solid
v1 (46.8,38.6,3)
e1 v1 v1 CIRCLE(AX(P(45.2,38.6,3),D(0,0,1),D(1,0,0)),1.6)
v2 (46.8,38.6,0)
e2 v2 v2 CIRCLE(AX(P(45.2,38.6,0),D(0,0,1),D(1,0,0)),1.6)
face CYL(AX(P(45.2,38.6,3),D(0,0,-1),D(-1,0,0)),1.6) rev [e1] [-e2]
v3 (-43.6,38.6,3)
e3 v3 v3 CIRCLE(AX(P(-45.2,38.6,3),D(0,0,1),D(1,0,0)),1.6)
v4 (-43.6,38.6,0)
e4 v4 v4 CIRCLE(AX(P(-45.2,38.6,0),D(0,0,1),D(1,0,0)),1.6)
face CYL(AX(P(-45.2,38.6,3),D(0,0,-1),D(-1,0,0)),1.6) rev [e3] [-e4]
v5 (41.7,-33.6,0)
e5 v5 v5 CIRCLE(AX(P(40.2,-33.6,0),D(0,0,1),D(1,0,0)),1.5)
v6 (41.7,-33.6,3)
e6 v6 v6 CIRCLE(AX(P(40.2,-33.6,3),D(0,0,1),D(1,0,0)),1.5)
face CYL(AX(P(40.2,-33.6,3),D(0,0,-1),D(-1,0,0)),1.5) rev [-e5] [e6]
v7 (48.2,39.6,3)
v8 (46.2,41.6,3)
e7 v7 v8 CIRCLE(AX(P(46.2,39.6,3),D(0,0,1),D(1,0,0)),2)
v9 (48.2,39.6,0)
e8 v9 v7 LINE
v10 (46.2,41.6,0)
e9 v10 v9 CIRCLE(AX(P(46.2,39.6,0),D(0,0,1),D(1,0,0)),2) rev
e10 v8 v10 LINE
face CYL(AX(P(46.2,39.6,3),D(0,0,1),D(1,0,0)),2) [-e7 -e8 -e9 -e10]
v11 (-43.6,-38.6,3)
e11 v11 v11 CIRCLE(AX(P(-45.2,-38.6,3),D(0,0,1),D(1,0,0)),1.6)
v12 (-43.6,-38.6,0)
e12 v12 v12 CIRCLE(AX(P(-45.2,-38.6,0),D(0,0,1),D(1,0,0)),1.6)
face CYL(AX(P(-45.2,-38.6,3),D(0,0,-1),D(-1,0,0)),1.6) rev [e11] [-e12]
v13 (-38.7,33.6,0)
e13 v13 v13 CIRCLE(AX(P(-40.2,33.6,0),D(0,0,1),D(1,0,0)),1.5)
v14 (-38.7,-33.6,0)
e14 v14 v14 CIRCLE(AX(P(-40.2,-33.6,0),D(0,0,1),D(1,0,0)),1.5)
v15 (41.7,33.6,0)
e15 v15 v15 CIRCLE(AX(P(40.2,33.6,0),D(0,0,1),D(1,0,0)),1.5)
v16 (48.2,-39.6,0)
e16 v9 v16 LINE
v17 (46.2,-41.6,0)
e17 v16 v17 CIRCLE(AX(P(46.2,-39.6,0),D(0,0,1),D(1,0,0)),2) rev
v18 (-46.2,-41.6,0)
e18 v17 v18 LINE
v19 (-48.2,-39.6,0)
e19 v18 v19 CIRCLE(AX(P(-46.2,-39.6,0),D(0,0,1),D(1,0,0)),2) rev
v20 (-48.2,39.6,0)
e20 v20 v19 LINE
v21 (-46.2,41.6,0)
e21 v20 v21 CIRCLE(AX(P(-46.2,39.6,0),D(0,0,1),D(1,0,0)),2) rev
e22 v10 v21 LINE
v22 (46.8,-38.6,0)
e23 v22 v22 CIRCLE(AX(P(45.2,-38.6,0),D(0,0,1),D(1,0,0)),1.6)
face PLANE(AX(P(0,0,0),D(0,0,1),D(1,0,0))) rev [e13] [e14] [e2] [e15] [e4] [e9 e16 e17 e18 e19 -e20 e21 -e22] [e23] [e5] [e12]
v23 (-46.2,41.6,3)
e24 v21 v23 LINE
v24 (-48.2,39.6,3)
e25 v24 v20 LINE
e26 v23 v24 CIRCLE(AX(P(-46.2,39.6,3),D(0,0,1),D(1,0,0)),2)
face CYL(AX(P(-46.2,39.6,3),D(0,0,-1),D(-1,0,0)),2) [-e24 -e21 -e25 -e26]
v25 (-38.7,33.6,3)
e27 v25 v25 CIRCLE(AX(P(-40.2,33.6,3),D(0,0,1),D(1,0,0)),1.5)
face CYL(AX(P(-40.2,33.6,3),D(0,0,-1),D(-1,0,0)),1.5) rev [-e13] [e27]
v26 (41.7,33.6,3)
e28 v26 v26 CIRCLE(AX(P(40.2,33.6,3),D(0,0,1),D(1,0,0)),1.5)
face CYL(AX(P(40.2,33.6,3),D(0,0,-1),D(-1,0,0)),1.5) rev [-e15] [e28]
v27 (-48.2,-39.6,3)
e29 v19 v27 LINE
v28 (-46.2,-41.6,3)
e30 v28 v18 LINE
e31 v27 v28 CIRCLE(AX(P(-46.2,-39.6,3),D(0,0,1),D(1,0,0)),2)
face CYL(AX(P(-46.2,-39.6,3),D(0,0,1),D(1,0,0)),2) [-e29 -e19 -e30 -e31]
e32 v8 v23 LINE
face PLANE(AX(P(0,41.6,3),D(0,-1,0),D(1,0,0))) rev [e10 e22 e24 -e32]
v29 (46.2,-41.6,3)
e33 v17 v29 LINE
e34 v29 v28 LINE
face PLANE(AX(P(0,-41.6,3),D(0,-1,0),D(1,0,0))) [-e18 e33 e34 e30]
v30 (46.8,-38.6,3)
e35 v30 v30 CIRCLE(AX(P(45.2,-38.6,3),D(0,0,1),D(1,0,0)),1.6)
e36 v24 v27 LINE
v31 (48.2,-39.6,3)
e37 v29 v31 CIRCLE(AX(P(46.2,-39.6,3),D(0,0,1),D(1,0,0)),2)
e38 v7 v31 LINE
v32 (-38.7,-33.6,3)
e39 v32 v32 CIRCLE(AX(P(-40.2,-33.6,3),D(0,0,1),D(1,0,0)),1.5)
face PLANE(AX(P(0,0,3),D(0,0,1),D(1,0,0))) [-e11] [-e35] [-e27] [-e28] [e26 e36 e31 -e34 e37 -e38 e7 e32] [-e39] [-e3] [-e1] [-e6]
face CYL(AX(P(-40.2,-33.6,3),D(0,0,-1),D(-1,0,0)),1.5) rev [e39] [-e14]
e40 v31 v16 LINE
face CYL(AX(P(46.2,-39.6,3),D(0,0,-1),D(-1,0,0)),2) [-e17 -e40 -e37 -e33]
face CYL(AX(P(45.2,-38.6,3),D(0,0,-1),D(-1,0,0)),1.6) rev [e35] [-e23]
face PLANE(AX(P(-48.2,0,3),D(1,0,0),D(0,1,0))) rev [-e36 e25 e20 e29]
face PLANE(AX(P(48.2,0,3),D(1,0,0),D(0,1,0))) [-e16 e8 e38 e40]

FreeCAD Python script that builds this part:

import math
import FreeCAD as App
import Part
import Sketcher

V = App.Vector
Q = App.Units.Quantity


def edges_at(feature, points):
    """Names of the edges that pass closest to the given points."""
    edges = feature.Shape.Edges
    near = lambda p: min(range(len(edges)), key=lambda i: edges[i].distToShape(Part.Vertex(*p))[0])
    return sorted({f"Edge{near(p) + 1}" for p in points})


def add_polygon(sketch, points):
    """Adds a closed chain of lines whose ends are joined by coincident constraints."""
    first, n = sketch.GeometryCount, len(points)
    for a, b in zip(points, points[1:] + points[:1]):
        sketch.addGeometry(Part.LineSegment(App.Vector(*a, 0), App.Vector(*b, 0)), False)
    for i in range(n):
        sketch.addConstraint(Sketcher.Constraint("Coincident", first + i, 2, first + (i + 1) % n, 1))

doc = App.newDocument("Part")
body = doc.addObject("PartDesign::Body", "Body")

sketch1 = body.newObject("Sketcher::SketchObject", "Sketch")
sketch1.AttachmentSupport = (doc.getObject("XY_Plane"), [""])
sketch1.MapMode = "FlatFace"
add_polygon(sketch1, [(-48.2, 41.6), (-48.2, -41.6), (48.2, -41.6), (48.2, 41.6)])
sketch1.addGeometry(Part.Circle(V(-45.2, -38.6, 0), V(0, 0, 1), 1.6), False)
sketch1.addGeometry(Part.Circle(V(45.2, -38.6, 0), V(0, 0, 1), 1.6), False)
sketch1.addGeometry(Part.Circle(V(-45.2, 38.6, 0), V(0, 0, 1), 1.6), False)
sketch1.addGeometry(Part.Circle(V(45.2, 38.6, 0), V(0, 0, 1), 1.6), False)
sketch1.addConstraint(Sketcher.Constraint("Vertical", 0))
sketch1.addConstraint(Sketcher.Constraint("Horizontal", 1))
sketch1.addConstraint(Sketcher.Constraint("Vertical", 2))
sketch1.addConstraint(Sketcher.Constraint("Horizontal", 3))
sketch1.addConstraint(Sketcher.Constraint("Equal", 4, 5))
sketch1.addConstraint(Sketcher.Constraint("Equal", 5, 6))
sketch1.addConstraint(Sketcher.Constraint("Equal", 6, 7))
sketch1.addConstraint(Sketcher.Constraint("Symmetric", 5, 3, 6, 3, -1, 1))
sketch1.addConstraint(Sketcher.Constraint("Symmetric", 4, 3, 7, 3, -1, 1))
sketch1.addConstraint(Sketcher.Constraint("Symmetric", 0, 2, 2, 2, -1, 1))
sketch1.addConstraint(Sketcher.Constraint("Symmetric", 4, 3, 5, 3, -2))
sketch1.addConstraint(Sketcher.Constraint("Diameter", 4, Q("3.2 mm")))
sketch1.addConstraint(Sketcher.Constraint("DistanceX", 1, 1, 1, 2, Q("96.4 mm")))
sketch1.addConstraint(Sketcher.Constraint("DistanceY", 0, 2, 0, 1, Q("83.2 mm")))
sketch1.addConstraint(Sketcher.Constraint("DistanceX", 0, 2, 4, 3, Q("3 mm")))
sketch1.addConstraint(Sketcher.Constraint("DistanceY", 0, 2, 4, 3, Q("3 mm")))
pad1 = body.newObject("PartDesign::Pad", "Pad")
pad1.Profile = sketch1
pad1.Length = 3
doc.recompute()

fillet = body.newObject("PartDesign::Fillet", "Fillet")
fillet.Base = (pad1, edges_at(pad1, [
    (48.2, -41.6, 1.5),
    (-48.2, -41.6, 1.5),
    (-48.2, 41.6, 1.5),
    (48.2, 41.6, 1.5),
]))
fillet.Radius = 2

sketch2 = body.newObject("Sketcher::SketchObject", "Sketch001")
sketch2.AttachmentSupport = (doc.getObject("XY_Plane"), [""])
sketch2.MapMode = "FlatFace"
sketch2.addGeometry(Part.ArcOfCircle(Part.Circle(V(40.2, 33.6, 0), V(0, 0, 1), 1.5), math.radians(0), math.radians(180)), False)
sketch2.addGeometry(Part.ArcOfCircle(Part.Circle(V(40.2, 33.6, 0), V(0, 0, 1), 1.5), math.radians(180), math.radians(270)), False)
sketch2.addGeometry(Part.ArcOfCircle(Part.Circle(V(40.2, 33.6, 0), V(0, 0, 1), 1.5), math.radians(-90), math.radians(0)), False)
sketch2.addGeometry(Part.ArcOfCircle(Part.Circle(V(40.2, -33.6, 0), V(0, 0, 1), 1.5), math.radians(0), math.radians(90)), False)
sketch2.addGeometry(Part.ArcOfCircle(Part.Circle(V(40.2, -33.6, 0), V(0, 0, 1), 1.5), math.radians(90), math.radians(180)), False)
sketch2.addGeometry(Part.ArcOfCircle(Part.Circle(V(40.2, -33.6, 0), V(0, 0, 1), 1.5), math.radians(180), math.radians(360)), False)
sketch2.addGeometry(Part.ArcOfCircle(Part.Circle(V(-40.2, -33.6, 0), V(0, 0, 1), 1.5), math.radians(0), math.radians(90)), False)
sketch2.addGeometry(Part.ArcOfCircle(Part.Circle(V(-40.2, -33.6, 0), V(0, 0, 1), 1.5), math.radians(90), math.radians(360)), False)
sketch2.addGeometry(Part.ArcOfCircle(Part.Circle(V(-40.2, 33.6, 0), V(0, 0, 1), 1.5), math.radians(-90), math.radians(0)), False)
sketch2.addGeometry(Part.ArcOfCircle(Part.Circle(V(-40.2, 33.6, 0), V(0, 0, 1), 1.5), math.radians(0), math.radians(270)), False)
sketch2.addConstraint(Sketcher.Constraint("Tangent", 0, 2, 1, 1))
sketch2.addConstraint(Sketcher.Constraint("Tangent", 1, 2, 2, 1))
sketch2.addConstraint(Sketcher.Constraint("Tangent", 2, 2, 0, 1))
sketch2.addConstraint(Sketcher.Constraint("Tangent", 3, 2, 4, 1))
sketch2.addConstraint(Sketcher.Constraint("Tangent", 4, 2, 5, 1))
sketch2.addConstraint(Sketcher.Constraint("Tangent", 5, 2, 3, 1))
sketch2.addConstraint(Sketcher.Constraint("Tangent", 6, 1, 7, 2))
sketch2.addConstraint(Sketcher.Constraint("Coincident", 7, 1, 6, 2))
sketch2.addConstraint(Sketcher.Constraint("Tangent", 8, 1, 9, 2))
sketch2.addConstraint(Sketcher.Constraint("Coincident", 9, 1, 8, 2))
sketch2.addConstraint(Sketcher.Constraint("Equal", 2, 3))
sketch2.addConstraint(Sketcher.Constraint("Equal", 5, 6))
sketch2.addConstraint(Sketcher.Constraint("Equal", 7, 8))
sketch2.addConstraint(Sketcher.Constraint("Symmetric", 0, 3, 6, 3, -1, 1))
sketch2.addConstraint(Sketcher.Constraint("Symmetric", 3, 3, 8, 3, -1, 1))
sketch2.addConstraint(Sketcher.Constraint("Symmetric", 3, 3, 6, 3, -2))
sketch2.addConstraint(Sketcher.Constraint("Horizontal", 9, 3, 0, 2))
sketch2.addConstraint(Sketcher.Constraint("Horizontal", 0, 2, 2, 2))
sketch2.addConstraint(Sketcher.Constraint("Horizontal", 7, 3, 4, 2))
sketch2.addConstraint(Sketcher.Constraint("Horizontal", 4, 2, 5, 2))
sketch2.addConstraint(Sketcher.Constraint("Horizontal", 5, 2, 6, 1))
sketch2.addConstraint(Sketcher.Constraint("Horizontal", 2, 2, 9, 1))
sketch2.addConstraint(Sketcher.Constraint("Vertical", 5, 3, 1, 2))
sketch2.addConstraint(Sketcher.Constraint("Vertical", 1, 2, 3, 2))
sketch2.addConstraint(Sketcher.Constraint("Vertical", 9, 3, 7, 1))
sketch2.addConstraint(Sketcher.Constraint("Vertical", 7, 1, 8, 1))
sketch2.addConstraint(Sketcher.Constraint("Radius", 0, Q("1.5 mm")))
sketch2.addConstraint(Sketcher.Constraint("DistanceX", -1, 1, 0, 3, Q("40.2 mm")))
sketch2.addConstraint(Sketcher.Constraint("DistanceY", -1, 1, 0, 3, Q("33.6 mm")))
pocket1 = body.newObject("PartDesign::Pocket", "Pocket")
pocket1.Profile = sketch2
pocket1.Length = 3
pocket1.Reversed = True

doc.recompute()
